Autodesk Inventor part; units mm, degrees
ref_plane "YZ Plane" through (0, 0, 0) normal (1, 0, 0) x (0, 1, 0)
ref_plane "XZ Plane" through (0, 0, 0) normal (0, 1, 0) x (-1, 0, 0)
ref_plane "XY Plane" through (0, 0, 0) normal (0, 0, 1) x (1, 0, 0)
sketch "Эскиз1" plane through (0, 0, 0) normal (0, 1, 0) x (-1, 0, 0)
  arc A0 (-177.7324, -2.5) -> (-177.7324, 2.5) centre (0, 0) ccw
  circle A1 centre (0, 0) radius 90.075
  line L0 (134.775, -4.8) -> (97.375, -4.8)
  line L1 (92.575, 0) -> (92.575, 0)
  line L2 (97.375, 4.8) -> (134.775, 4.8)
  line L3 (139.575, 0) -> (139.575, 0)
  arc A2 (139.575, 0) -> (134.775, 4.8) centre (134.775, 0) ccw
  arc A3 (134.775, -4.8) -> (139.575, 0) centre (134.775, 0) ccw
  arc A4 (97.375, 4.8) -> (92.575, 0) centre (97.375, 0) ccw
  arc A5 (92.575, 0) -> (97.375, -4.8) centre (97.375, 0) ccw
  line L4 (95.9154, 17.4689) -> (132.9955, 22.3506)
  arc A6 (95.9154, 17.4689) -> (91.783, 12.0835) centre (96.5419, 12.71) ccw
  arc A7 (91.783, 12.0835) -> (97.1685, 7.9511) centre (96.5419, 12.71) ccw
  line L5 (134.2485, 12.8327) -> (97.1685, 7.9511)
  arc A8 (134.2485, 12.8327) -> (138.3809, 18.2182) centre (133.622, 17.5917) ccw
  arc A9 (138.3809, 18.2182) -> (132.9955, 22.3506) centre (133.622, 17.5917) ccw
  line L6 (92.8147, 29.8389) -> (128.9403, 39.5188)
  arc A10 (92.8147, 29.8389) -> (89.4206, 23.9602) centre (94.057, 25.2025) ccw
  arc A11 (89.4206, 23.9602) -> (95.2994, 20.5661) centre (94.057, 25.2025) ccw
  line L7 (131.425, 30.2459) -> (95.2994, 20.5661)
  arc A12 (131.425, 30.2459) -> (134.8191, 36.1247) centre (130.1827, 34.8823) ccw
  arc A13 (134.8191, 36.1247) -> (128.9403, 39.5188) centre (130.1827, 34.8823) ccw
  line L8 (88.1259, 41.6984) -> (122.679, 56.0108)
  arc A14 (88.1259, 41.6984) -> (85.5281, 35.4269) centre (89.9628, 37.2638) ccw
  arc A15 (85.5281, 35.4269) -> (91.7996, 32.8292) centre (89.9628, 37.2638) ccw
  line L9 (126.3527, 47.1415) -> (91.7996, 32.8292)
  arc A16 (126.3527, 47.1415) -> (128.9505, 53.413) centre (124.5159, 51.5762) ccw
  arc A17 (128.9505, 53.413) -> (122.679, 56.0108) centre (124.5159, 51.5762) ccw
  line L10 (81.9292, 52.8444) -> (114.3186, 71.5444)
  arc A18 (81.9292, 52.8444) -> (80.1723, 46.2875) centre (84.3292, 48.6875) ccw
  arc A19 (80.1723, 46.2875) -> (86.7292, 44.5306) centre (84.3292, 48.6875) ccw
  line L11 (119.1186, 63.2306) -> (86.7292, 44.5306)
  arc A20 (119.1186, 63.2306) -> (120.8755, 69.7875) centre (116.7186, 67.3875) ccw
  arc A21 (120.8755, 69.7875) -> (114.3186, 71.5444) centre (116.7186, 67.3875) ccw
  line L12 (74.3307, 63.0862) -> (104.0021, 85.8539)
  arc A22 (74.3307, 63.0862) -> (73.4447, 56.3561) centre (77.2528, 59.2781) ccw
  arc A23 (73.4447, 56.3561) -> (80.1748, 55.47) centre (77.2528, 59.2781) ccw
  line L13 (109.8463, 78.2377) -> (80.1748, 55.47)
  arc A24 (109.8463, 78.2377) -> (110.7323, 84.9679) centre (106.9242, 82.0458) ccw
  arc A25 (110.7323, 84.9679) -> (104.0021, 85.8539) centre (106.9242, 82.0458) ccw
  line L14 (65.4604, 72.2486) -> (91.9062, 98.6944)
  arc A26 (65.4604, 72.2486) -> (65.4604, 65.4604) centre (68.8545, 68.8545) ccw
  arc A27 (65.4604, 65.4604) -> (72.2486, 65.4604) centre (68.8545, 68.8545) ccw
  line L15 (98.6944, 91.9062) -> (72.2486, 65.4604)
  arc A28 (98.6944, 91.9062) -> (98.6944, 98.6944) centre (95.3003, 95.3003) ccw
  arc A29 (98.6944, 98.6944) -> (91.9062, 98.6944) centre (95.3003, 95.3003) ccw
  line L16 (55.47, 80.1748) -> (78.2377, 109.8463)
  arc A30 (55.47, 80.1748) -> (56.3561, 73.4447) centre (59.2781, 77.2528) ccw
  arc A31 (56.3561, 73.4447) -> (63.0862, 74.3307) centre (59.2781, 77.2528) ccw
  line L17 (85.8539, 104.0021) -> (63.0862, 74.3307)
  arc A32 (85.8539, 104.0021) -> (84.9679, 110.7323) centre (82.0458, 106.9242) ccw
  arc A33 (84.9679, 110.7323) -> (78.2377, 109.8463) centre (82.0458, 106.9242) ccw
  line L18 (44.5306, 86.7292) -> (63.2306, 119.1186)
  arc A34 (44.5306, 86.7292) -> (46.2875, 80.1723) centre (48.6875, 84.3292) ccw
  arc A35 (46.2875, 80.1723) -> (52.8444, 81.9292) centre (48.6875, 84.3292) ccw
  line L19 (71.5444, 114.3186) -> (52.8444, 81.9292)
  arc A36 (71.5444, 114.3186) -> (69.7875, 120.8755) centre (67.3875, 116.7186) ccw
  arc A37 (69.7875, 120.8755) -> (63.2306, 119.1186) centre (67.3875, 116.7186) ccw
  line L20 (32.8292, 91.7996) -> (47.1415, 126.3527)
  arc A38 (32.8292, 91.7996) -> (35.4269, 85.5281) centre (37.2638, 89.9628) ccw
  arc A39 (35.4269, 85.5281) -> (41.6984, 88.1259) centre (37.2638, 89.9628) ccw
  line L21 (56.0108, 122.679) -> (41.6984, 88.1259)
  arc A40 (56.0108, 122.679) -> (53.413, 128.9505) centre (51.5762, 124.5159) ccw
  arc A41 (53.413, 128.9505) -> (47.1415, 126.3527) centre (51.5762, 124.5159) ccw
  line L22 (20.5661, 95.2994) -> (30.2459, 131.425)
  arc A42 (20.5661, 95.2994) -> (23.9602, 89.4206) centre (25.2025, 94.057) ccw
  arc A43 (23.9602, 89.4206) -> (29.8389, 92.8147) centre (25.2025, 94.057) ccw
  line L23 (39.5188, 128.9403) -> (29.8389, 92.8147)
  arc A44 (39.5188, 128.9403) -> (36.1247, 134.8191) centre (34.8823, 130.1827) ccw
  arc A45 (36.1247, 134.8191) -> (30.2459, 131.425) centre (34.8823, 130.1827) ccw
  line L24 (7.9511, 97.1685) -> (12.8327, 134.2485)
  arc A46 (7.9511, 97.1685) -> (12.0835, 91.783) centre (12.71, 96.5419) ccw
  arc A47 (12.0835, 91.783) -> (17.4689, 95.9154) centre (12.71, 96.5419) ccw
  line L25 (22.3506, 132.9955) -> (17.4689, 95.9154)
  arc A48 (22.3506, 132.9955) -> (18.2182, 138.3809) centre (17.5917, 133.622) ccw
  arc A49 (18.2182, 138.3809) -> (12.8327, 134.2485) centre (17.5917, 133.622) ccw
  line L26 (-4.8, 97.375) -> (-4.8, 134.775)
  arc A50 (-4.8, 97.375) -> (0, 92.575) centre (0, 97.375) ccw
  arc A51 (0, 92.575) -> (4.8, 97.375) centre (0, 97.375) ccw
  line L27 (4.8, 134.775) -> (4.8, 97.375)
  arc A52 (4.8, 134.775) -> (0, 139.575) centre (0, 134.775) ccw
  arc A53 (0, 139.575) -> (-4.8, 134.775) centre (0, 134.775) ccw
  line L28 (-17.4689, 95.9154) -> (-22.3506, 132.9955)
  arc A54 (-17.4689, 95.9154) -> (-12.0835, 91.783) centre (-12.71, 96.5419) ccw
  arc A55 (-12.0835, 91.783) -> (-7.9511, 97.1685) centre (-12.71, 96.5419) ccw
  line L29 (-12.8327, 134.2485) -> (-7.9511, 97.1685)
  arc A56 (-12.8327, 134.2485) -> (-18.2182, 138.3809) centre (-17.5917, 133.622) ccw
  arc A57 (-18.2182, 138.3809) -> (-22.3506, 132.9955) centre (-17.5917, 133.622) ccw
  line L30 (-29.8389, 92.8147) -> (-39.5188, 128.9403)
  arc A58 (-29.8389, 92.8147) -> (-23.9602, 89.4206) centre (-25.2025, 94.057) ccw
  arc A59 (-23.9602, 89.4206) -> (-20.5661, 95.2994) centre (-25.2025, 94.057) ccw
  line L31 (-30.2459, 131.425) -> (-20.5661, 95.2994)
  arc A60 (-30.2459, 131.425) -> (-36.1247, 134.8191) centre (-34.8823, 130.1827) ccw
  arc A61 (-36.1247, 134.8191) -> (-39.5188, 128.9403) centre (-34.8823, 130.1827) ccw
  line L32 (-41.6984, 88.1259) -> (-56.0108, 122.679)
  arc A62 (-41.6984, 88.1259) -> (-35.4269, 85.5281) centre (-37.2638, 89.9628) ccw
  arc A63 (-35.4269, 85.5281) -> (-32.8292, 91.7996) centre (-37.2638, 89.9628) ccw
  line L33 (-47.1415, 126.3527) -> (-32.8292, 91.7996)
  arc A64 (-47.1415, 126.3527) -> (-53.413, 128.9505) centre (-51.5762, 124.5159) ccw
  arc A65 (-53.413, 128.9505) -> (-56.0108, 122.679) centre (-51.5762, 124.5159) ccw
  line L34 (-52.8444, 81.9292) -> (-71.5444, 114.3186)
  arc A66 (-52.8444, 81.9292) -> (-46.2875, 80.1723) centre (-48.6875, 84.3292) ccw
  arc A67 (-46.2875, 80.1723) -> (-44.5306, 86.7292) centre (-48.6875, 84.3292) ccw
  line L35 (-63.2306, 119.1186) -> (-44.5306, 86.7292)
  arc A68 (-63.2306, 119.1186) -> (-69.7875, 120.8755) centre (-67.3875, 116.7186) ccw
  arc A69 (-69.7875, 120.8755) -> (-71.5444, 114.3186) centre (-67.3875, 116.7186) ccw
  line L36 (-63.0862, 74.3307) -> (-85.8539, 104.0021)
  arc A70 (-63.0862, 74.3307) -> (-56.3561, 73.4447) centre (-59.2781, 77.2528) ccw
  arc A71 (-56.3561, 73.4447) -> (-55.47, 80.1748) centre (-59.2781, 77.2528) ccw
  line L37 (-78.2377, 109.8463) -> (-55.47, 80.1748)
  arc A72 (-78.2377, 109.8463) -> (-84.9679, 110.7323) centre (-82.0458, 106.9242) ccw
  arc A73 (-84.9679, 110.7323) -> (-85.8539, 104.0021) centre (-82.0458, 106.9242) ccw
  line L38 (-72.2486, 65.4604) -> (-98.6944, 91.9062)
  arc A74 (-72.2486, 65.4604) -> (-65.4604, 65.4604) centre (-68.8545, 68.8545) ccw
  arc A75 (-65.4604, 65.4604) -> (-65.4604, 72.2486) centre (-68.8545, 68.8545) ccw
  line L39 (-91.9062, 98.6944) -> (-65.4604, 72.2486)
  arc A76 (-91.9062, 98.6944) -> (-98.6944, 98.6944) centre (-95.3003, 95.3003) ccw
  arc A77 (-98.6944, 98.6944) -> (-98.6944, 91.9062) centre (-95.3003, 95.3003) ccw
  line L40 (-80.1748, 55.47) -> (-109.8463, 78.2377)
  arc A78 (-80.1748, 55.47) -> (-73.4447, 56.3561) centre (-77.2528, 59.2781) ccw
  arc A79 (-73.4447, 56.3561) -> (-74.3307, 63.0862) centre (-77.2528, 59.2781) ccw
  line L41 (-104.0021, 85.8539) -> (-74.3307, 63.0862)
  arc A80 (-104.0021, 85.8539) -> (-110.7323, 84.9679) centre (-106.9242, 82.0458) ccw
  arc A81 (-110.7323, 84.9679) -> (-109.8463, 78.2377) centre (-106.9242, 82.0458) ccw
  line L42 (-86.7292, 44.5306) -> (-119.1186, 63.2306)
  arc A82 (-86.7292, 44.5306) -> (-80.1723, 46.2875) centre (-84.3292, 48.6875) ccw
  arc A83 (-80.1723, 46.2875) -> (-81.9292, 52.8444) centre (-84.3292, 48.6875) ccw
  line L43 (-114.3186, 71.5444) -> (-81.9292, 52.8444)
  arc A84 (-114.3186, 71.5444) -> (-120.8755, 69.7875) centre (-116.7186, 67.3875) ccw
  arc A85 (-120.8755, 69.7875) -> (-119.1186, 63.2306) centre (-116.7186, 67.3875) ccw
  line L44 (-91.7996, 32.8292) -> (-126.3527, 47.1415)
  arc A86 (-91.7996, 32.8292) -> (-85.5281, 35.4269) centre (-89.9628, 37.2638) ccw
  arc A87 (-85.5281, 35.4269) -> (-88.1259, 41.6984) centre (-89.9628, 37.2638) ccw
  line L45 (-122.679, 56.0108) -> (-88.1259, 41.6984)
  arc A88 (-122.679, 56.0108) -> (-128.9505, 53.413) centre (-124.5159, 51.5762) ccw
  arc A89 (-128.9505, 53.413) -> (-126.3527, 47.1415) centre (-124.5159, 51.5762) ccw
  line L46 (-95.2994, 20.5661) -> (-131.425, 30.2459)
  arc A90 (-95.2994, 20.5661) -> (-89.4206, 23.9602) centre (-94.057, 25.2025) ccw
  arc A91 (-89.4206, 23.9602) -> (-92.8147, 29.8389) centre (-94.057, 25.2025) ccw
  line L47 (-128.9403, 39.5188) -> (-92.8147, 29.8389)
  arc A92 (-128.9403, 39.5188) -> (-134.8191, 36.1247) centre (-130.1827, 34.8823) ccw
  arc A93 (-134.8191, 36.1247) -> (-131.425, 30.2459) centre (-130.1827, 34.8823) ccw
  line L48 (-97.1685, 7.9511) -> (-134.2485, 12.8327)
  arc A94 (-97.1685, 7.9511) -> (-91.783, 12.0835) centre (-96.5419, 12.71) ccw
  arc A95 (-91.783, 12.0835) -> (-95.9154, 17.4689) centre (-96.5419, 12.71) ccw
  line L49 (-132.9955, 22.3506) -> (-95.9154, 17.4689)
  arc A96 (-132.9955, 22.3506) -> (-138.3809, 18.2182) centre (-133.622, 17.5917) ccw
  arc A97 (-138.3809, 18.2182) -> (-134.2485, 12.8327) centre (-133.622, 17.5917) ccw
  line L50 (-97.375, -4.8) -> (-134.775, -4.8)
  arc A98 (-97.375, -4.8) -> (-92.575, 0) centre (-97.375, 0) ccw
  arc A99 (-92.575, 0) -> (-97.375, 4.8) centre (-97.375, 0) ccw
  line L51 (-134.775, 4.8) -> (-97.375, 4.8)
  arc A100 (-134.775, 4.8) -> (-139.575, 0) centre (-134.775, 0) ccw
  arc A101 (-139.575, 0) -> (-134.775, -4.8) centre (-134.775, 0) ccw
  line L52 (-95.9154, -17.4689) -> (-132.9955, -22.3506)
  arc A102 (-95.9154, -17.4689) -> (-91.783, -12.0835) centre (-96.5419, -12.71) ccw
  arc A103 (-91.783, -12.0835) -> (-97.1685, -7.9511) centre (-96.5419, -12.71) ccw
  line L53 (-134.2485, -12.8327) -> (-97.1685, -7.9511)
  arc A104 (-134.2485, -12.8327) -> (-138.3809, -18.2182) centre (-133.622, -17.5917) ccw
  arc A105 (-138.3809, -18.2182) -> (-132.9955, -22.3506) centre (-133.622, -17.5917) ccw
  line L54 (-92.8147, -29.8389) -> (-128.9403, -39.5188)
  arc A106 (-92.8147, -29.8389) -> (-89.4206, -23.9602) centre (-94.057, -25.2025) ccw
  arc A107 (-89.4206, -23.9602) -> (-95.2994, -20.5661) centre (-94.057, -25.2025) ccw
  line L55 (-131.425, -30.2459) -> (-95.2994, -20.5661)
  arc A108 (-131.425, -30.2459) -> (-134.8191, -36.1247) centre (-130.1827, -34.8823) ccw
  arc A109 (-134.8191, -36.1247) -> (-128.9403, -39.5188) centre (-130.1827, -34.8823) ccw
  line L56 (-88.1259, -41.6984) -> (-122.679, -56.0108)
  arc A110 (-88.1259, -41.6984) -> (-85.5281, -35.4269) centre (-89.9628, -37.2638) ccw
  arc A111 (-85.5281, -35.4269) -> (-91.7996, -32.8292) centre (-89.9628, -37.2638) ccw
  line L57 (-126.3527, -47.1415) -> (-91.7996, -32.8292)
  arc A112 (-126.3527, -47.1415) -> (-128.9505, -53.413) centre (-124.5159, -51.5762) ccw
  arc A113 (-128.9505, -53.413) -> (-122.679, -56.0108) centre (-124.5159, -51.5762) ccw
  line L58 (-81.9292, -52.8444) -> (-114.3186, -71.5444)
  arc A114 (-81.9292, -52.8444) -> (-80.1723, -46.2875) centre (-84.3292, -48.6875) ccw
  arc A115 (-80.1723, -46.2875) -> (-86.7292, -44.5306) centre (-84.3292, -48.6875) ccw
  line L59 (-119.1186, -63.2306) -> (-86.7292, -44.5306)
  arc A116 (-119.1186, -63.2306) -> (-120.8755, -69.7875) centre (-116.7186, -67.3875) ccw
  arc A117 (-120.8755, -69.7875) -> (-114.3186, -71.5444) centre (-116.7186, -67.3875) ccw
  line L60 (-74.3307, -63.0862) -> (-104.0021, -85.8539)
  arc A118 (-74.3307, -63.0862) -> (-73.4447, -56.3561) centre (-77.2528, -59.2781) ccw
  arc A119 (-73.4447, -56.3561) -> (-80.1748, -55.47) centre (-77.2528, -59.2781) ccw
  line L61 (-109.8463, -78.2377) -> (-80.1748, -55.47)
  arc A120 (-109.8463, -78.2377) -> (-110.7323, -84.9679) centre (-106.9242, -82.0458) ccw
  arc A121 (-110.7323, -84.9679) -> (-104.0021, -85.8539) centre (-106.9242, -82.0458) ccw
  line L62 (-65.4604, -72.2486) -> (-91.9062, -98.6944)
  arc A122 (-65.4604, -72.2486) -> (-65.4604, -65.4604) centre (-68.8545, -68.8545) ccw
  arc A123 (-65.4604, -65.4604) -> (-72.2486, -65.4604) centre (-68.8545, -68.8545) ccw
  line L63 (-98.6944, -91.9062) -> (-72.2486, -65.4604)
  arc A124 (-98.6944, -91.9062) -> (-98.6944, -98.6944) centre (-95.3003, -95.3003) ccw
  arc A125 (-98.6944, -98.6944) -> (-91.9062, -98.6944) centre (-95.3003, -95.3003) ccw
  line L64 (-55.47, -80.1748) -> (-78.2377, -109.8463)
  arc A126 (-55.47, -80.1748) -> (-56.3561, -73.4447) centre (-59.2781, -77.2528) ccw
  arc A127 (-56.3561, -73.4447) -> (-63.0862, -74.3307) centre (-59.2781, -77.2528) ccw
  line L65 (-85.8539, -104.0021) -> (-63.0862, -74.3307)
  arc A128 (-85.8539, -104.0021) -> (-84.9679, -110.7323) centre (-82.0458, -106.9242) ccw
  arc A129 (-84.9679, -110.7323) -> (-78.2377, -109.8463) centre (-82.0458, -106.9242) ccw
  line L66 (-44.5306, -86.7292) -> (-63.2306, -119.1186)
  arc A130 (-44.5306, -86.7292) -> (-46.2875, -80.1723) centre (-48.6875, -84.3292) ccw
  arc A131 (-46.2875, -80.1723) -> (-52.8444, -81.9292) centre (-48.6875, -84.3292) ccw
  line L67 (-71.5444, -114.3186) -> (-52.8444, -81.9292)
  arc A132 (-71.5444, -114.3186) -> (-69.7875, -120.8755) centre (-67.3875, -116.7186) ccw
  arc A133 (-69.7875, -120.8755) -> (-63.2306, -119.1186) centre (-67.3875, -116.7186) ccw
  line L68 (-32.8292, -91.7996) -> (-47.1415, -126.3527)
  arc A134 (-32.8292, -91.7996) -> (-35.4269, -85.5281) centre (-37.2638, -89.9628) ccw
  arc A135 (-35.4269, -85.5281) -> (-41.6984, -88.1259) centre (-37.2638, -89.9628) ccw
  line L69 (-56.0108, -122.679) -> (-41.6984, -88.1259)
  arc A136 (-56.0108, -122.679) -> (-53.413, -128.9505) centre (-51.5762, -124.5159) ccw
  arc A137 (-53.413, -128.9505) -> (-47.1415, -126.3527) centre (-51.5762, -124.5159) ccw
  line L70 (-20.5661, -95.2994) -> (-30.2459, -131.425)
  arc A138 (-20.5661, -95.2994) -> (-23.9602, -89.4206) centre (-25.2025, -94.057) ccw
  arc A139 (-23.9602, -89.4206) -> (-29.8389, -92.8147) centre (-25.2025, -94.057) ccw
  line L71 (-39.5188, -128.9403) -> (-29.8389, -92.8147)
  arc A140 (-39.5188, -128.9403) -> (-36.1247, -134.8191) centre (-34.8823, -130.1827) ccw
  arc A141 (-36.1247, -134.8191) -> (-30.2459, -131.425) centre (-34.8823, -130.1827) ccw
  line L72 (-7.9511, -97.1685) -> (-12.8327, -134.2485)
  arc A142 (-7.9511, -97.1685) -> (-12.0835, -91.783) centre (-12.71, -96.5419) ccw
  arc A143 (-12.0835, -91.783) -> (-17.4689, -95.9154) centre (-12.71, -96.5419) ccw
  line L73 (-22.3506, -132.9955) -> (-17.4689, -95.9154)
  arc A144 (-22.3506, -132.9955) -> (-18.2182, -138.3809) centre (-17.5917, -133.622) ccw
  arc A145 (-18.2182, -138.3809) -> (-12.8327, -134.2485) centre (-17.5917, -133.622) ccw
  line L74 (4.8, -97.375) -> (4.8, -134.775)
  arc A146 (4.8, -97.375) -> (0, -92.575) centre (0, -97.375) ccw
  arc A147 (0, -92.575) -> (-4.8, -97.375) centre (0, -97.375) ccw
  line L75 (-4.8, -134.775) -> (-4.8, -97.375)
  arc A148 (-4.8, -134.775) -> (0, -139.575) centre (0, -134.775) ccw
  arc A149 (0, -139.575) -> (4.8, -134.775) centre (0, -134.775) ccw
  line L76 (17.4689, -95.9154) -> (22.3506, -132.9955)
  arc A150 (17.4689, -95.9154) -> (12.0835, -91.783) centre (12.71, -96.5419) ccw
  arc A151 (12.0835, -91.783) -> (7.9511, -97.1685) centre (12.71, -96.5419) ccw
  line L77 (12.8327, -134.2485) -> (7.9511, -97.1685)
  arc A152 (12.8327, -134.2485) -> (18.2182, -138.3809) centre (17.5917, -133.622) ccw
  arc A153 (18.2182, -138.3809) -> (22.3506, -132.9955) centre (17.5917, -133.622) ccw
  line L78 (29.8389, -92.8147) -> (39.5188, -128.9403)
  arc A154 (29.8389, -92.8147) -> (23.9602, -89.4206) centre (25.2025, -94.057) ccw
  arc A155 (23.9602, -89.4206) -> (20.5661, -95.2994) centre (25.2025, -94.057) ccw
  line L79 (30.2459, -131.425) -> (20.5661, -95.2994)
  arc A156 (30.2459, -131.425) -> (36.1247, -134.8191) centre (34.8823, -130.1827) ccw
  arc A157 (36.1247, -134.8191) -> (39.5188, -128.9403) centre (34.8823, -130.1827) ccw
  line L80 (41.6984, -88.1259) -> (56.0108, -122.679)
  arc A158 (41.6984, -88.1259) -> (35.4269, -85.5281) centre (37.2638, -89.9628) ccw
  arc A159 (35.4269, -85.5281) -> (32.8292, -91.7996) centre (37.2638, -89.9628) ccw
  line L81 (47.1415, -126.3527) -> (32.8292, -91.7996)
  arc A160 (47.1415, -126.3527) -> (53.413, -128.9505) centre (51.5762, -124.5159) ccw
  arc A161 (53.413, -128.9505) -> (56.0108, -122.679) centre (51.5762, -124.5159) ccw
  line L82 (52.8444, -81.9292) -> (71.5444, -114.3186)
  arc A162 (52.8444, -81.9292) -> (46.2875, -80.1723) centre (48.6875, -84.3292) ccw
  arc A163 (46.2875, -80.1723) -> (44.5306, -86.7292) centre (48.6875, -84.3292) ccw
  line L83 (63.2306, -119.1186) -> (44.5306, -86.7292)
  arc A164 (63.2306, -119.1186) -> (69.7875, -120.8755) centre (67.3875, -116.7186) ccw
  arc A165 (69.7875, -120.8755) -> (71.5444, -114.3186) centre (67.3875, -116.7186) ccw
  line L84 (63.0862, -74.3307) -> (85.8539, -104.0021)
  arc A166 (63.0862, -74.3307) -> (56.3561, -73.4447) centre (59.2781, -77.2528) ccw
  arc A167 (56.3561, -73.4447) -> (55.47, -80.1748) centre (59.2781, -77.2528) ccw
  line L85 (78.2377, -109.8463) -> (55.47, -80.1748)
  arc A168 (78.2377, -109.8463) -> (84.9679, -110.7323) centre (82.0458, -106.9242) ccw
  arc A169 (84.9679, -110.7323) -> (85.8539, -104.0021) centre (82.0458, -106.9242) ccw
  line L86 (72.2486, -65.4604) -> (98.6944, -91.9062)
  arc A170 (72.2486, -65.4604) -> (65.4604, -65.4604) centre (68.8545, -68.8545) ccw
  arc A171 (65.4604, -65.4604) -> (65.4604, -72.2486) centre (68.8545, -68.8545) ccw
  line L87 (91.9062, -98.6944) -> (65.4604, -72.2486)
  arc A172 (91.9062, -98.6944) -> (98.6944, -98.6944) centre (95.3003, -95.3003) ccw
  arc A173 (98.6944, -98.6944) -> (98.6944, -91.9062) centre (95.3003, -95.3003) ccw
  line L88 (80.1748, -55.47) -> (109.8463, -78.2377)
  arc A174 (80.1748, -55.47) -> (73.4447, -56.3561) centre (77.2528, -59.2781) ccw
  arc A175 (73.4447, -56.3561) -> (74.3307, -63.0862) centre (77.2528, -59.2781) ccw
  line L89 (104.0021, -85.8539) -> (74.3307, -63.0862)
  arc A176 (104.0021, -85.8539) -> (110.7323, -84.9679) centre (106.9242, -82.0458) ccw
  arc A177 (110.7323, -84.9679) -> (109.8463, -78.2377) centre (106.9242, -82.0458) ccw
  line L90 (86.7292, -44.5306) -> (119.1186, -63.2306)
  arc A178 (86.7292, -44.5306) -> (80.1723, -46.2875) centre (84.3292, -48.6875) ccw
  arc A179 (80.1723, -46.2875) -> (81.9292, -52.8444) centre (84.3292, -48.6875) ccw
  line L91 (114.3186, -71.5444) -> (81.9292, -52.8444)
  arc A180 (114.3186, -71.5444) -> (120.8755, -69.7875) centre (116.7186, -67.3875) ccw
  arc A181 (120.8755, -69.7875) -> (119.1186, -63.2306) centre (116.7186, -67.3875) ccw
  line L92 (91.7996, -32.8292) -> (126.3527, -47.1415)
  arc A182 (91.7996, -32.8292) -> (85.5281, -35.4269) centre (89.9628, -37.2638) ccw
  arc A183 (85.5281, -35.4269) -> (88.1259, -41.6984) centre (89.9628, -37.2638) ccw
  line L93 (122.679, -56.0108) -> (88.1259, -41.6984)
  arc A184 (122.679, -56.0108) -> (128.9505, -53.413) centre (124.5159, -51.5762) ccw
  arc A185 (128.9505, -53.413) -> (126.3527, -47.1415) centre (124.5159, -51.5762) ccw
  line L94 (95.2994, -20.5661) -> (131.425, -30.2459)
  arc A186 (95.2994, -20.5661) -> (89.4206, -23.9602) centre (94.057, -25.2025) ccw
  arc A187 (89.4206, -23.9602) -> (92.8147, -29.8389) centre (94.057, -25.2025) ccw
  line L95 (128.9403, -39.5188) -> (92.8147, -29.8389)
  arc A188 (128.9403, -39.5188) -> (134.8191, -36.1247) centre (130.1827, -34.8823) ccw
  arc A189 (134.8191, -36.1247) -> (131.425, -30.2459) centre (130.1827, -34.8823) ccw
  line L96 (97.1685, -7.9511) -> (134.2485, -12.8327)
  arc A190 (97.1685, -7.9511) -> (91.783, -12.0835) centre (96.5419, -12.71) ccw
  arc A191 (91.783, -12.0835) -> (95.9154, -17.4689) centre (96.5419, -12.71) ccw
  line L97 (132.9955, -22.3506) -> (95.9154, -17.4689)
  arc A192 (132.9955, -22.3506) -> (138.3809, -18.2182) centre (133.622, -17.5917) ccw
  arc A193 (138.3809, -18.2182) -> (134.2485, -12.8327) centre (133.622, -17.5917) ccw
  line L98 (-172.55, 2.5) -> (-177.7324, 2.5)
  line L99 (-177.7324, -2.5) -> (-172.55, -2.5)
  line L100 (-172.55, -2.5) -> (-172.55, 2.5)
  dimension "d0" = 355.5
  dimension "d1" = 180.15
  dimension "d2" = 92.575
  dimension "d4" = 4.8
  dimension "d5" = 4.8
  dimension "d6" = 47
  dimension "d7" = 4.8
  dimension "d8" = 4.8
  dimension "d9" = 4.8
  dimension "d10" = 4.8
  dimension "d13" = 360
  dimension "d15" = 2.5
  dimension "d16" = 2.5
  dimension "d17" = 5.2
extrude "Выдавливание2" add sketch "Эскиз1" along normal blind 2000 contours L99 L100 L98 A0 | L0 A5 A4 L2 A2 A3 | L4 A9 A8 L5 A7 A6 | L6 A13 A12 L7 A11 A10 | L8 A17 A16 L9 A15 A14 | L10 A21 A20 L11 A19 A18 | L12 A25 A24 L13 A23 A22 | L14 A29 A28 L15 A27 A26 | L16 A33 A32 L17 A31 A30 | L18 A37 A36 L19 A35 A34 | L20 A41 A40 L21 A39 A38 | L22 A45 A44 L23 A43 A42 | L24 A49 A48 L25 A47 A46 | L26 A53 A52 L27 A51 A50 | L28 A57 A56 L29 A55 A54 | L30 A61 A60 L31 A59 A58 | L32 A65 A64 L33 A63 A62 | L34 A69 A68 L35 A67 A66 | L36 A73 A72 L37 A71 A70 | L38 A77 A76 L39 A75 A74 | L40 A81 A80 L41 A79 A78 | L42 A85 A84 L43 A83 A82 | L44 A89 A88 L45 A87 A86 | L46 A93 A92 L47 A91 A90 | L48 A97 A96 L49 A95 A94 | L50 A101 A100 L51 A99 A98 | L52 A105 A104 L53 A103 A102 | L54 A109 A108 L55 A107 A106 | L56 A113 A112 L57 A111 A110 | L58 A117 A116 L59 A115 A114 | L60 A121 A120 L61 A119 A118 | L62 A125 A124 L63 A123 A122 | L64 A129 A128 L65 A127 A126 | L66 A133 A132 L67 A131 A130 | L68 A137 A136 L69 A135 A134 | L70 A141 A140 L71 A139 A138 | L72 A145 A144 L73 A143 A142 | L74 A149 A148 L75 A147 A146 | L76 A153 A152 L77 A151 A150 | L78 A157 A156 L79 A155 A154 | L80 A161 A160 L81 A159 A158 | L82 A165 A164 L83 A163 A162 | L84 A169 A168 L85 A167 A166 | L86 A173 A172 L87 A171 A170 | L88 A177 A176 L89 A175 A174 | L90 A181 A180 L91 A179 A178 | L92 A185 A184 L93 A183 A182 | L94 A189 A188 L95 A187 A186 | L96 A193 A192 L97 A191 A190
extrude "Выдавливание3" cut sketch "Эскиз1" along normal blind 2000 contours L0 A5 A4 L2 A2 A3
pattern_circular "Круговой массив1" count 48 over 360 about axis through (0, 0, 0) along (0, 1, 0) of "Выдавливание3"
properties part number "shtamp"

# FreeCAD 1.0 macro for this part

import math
import FreeCAD as App
import Part
import Sketcher

doc = App.newDocument("Part")
body = doc.addObject("PartDesign::Body", "Body")

# Sketch on XZ plane
sketch1 = body.newObject("Sketcher::SketchObject", "Sketch")
sketch1.AttachmentSupport = (doc.getObject("XZ_Plane"), [""])
sketch1.MapMode = "FlatFace"
sketch1.addGeometry([
    Part.LineSegment(App.Vector(173, -2, 0), App.Vector(178, -2, 0)),  # 0
    Part.ArcOfCircle(Part.Circle(App.Vector(0, 0, 0), App.Vector(0, 0, 1), 178), math.radians(1), math.radians(359)),  # 1
    Part.LineSegment(App.Vector(178, 2, 0), App.Vector(173, 2, 0)),  # 2
    Part.LineSegment(App.Vector(173, 2, 0), App.Vector(173, -2, 0)),  # 3
    Part.Circle(App.Vector(0, 0, 0), App.Vector(0, 0, 1), 90),  # 4
], False)
sketch1.addConstraint([
    Sketcher.Constraint("Coincident", 0, 2, 1, 2),
    Sketcher.Constraint("Coincident", 1, 1, 2, 1),
    Sketcher.Constraint("Coincident", 2, 2, 3, 1),
    Sketcher.Constraint("Coincident", 3, 2, 0, 1),
    Sketcher.Constraint("Horizontal", 0),
    Sketcher.Constraint("Horizontal", 2),
    Sketcher.Constraint("Vertical", 3),
    Sketcher.Constraint("Coincident", 1, 3, -1, 1),
    Sketcher.Constraint("Coincident", 4, 3, -1, 1),
    Sketcher.Constraint("Vertical", 0, 2, 1, 1),
    Sketcher.Constraint("Diameter", 4, 180.15),
    Sketcher.Constraint("Radius", 1, 177.75),
    Sketcher.Constraint("DistanceY", 0, 2, -1, 1, 2.5),
    Sketcher.Constraint("DistanceX", -1, 1, 2, 2, 172.55),
])
pad1 = body.newObject("PartDesign::Pad", "Pad")
pad1.Profile = sketch1
pad1.Length = 2000
pad1.Reversed = True

# Sketch on XZ plane
sketch2 = body.newObject("Sketcher::SketchObject", "Sketch001")
sketch2.AttachmentSupport = (doc.getObject("XZ_Plane"), [""])
sketch2.MapMode = "FlatFace"
sketch2.addGeometry([
    Part.LineSegment(App.Vector(-97.4, -4.8, 0), App.Vector(-134.8, -4.8, 0)),
    Part.ArcOfCircle(Part.Circle(App.Vector(-134.8, 0, 0), App.Vector(0, 0, 1), 4.8), math.radians(90), math.radians(270)),
    Part.LineSegment(App.Vector(-134.8, 4.8, 0), App.Vector(-97.4, 4.8, 0)),
    Part.ArcOfCircle(Part.Circle(App.Vector(-97.4, 0, 0), App.Vector(0, 0, 1), 4.8), math.radians(-90), math.radians(90)),
], False)
sketch2.addConstraint([
    Sketcher.Constraint("Tangent", 0, 2, 1, 2),
    Sketcher.Constraint("Tangent", 1, 1, 2, 1),
    Sketcher.Constraint("Tangent", 2, 2, 3, 2),
    Sketcher.Constraint("Tangent", 3, 1, 0, 1),
    Sketcher.Constraint("Horizontal", 0),
    Sketcher.Constraint("Horizontal", 2),
    Sketcher.Constraint("PointOnObject", 1, 3, -1),
    Sketcher.Constraint("Radius", 1, 4.8),
    Sketcher.Constraint("DistanceX", 0, 2, 0, 1, 37.4),
    Sketcher.Constraint("DistanceX", 1, 3, -1, 1, 134.775),
])
pocket1 = body.newObject("PartDesign::Pocket", "Pocket")
pocket1.Profile = sketch2
pocket1.Length = 2000
doc.recompute()

polarpattern = body.newObject("PartDesign::PolarPattern", "PolarPattern")
polarpattern.Originals = [pocket1]
polarpattern.Axis = (doc.getObject("Y_Axis"), [""])
polarpattern.Angle = 360
polarpattern.Occurrences = 48
body.Tip = polarpattern

doc.recompute()
